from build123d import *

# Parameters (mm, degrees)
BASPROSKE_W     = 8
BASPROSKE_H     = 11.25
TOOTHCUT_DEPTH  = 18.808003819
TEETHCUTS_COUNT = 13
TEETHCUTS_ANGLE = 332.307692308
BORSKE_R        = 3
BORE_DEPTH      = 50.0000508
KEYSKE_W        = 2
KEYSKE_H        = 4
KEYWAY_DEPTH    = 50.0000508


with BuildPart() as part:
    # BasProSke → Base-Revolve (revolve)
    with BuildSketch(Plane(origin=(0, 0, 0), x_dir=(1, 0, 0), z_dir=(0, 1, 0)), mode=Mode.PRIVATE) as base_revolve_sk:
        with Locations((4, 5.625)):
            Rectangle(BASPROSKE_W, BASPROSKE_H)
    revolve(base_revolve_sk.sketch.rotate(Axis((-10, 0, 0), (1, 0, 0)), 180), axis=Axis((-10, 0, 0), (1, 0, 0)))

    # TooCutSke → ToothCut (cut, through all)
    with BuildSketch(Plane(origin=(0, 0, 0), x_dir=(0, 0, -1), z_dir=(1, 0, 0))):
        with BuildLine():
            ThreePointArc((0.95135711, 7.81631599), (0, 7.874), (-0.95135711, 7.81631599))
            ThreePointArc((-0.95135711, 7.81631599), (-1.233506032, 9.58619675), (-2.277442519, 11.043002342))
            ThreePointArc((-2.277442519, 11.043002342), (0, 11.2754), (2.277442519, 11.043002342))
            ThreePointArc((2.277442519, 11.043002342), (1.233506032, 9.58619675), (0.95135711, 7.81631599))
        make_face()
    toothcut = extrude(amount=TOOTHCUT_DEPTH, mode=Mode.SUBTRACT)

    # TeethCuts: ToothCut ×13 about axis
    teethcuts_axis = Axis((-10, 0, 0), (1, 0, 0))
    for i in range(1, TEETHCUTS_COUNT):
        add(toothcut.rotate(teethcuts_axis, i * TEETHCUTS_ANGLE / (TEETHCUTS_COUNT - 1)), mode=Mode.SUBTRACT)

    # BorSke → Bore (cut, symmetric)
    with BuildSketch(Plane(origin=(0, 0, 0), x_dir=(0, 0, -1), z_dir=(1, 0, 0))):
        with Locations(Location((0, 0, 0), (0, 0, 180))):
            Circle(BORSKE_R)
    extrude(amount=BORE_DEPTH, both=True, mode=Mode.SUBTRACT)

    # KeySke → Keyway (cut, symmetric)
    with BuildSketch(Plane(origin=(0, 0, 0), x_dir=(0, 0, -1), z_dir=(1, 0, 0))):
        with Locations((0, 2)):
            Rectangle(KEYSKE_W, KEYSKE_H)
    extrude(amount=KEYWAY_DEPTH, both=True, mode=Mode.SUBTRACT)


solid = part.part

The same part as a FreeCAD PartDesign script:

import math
import FreeCAD as App
import Part
import Sketcher

V = App.Vector


def add_polygon(sketch, points):
    """Adds a closed chain of lines whose ends are joined by coincident constraints."""
    first, n = sketch.GeometryCount, len(points)
    for a, b in zip(points, points[1:] + points[:1]):
        sketch.addGeometry(Part.LineSegment(App.Vector(*a, 0), App.Vector(*b, 0)), False)
    for i in range(n):
        sketch.addConstraint(Sketcher.Constraint("Coincident", first + i, 2, first + (i + 1) % n, 1))

doc = App.newDocument("Part")
params = doc.addObject("Spreadsheet::Sheet", "Params")
for row, (alias, value) in enumerate([
    ("sketch1_width", "8 mm"),
    ("sketch1_height", "11.25 mm"),
    ("revolution_angle", "360 deg"),
    ("sketch2_radius", "3.9 mm"),
    ("sketch3_diameter", "6 mm"),
    ("pocket2_length", "100.000102 mm"),
    ("sketch4_width", "4 mm"),
    ("sketch4_height", "2 mm"),
    ("pocket3_length", "100.000102 mm"),
], start=1):
    params.set(f"A{row}", alias)
    params.set(f"B{row}", "=" + value)
    params.setAlias(f"B{row}", alias)

body = doc.addObject("PartDesign::Body", "Body")

# Sketch on XZ plane
sketch1 = doc.addObject("Sketcher::SketchObject", "Sketch")
body.addObject(sketch1)
sketch1.AttachmentSupport = (doc.XZ_Plane, [""])
sketch1.MapMode = "FlatFace"
add_polygon(sketch1, [(0, -11.25), (0, 0), (8, 0), (8, -11.25)])  # lines 0-3
sketch1.addConstraint([
    Sketcher.Constraint("Vertical", 0),
    Sketcher.Constraint("Horizontal", 1),
    Sketcher.Constraint("Vertical", 2),
    Sketcher.Constraint("Horizontal", 3),
    Sketcher.Constraint("Coincident", 0, 2, -1, 1),
    Sketcher.Constraint("DistanceX", 1, 1, 1, 2, 8.0),
    Sketcher.Constraint("DistanceY", 0, 1, 0, 2, 11.25),
])
sketch1.setExpression("Constraints[9]", "Params.sketch1_width")
sketch1.setExpression("Constraints[10]", "Params.sketch1_height")
revolution = doc.addObject("PartDesign::Revolution", "Revolution")
body.addObject(revolution)
revolution.Profile = sketch1
revolution.ReferenceAxis = (sketch1, ["H_Axis"])
revolution.setExpression("Angle", "Params.revolution_angle")

# Sketch on YZ plane
sketch2 = doc.addObject("Sketcher::SketchObject", "Sketch001")
body.addObject(sketch2)
sketch2.AttachmentSupport = (doc.YZ_Plane, [""])
sketch2.MapMode = "FlatFace"
sketch2.addGeometry([
    Part.ArcOfCircle(Part.Circle(V(0, 0, 0), V(0, 0, 1), 7.874), math.radians(-6.939579), math.radians(6.939579)),
    Part.ArcOfCircle(Part.Circle(V(8.10371, -4.840754, 0), V(0, 0, 1), 3.9), math.radians(41.09118), math.radians(94.226008)),
    Part.ArcOfCircle(Part.Circle(V(0, 0, 0), V(0, 0, 1), 11.2754), math.radians(-11.652961), math.radians(11.652961)),
    Part.ArcOfCircle(Part.Circle(V(8.10371, 4.840754, 0), V(0, 0, 1), 3.9), math.radians(-94.226008), math.radians(-41.09118)),
], False)
sketch2.addConstraint([
    Sketcher.Constraint("Coincident", 0, 1, 1, 2),
    Sketcher.Constraint("Coincident", 1, 1, 2, 1),
    Sketcher.Constraint("Coincident", 2, 2, 3, 2),
    Sketcher.Constraint("Coincident", 3, 1, 0, 2),
    Sketcher.Constraint("Coincident", 0, 3, -1, 1),
    Sketcher.Constraint("Coincident", 2, 3, -1, 1),
    Sketcher.Constraint("Equal", 1, 3),
    Sketcher.Constraint("Symmetric", 1, 3, 3, 3, -1),
    Sketcher.Constraint("Radius", 1, 3.9),
    Sketcher.Constraint("Radius", 0, 7.874),
    Sketcher.Constraint("Radius", 2, 11.2754),
    Sketcher.Constraint("DistanceY", 0, 1, 2, 2, 3.2288),
    Sketcher.Constraint("DistanceX", -1, 1, 1, 3, 8.10371),
])
sketch2.setExpression("Constraints[8]", "Params.sketch2_radius")
pocket1 = doc.addObject("PartDesign::Pocket", "Pocket")
body.addObject(pocket1)
pocket1.Profile = sketch2
pocket1.Type = "ThroughAll"
pocket1.Reversed = True
doc.recompute()

polarpattern = doc.addObject("PartDesign::PolarPattern", "PolarPattern")
body.addObject(polarpattern)
polarpattern.Originals = [pocket1]
polarpattern.Axis = (doc.X_Axis, [""])
polarpattern.Angle = 360
polarpattern.Occurrences = 13
body.Tip = polarpattern

# Sketch on YZ plane
sketch3 = doc.addObject("Sketcher::SketchObject", "Sketch002")
body.addObject(sketch3)
sketch3.AttachmentSupport = (doc.YZ_Plane, [""])
sketch3.MapMode = "FlatFace"
sketch3.addGeometry(Part.Circle(V(0, 0, 0), V(0, 0, 1), 3), False)
sketch3.addConstraint([
    Sketcher.Constraint("Coincident", 0, 3, -1, 1),
    Sketcher.Constraint("Diameter", 0, 6.0),
])
sketch3.setExpression("Constraints[1]", "Params.sketch3_diameter")
pocket2 = doc.addObject("PartDesign::Pocket", "Pocket001")
body.addObject(pocket2)
pocket2.Profile = sketch3
pocket2.setExpression("Length", "Params.pocket2_length")
pocket2.Midplane = True

# Sketch on YZ plane
sketch4 = doc.addObject("Sketcher::SketchObject", "Sketch003")
body.addObject(sketch4)
sketch4.AttachmentSupport = (doc.YZ_Plane, [""])
sketch4.MapMode = "FlatFace"
add_polygon(sketch4, [(4, 1), (0, 1), (0, -1), (4, -1)])  # lines 0-3
sketch4.addConstraint([
    Sketcher.Constraint("Horizontal", 0),
    Sketcher.Constraint("Vertical", 1),
    Sketcher.Constraint("Horizontal", 2),
    Sketcher.Constraint("Vertical", 3),
    Sketcher.Constraint("Symmetric", 0, 2, 1, 2, -1, 1),
    Sketcher.Constraint("DistanceX", 0, 2, 0, 1, 4.0),
    Sketcher.Constraint("DistanceY", 1, 2, 1, 1, 2.0),
])
sketch4.setExpression("Constraints[9]", "Params.sketch4_width")
sketch4.setExpression("Constraints[10]", "Params.sketch4_height")
pocket3 = doc.addObject("PartDesign::Pocket", "Pocket002")
body.addObject(pocket3)
pocket3.Profile = sketch4
pocket3.setExpression("Length", "Params.pocket3_length")
pocket3.Midplane = True

doc.recompute()
